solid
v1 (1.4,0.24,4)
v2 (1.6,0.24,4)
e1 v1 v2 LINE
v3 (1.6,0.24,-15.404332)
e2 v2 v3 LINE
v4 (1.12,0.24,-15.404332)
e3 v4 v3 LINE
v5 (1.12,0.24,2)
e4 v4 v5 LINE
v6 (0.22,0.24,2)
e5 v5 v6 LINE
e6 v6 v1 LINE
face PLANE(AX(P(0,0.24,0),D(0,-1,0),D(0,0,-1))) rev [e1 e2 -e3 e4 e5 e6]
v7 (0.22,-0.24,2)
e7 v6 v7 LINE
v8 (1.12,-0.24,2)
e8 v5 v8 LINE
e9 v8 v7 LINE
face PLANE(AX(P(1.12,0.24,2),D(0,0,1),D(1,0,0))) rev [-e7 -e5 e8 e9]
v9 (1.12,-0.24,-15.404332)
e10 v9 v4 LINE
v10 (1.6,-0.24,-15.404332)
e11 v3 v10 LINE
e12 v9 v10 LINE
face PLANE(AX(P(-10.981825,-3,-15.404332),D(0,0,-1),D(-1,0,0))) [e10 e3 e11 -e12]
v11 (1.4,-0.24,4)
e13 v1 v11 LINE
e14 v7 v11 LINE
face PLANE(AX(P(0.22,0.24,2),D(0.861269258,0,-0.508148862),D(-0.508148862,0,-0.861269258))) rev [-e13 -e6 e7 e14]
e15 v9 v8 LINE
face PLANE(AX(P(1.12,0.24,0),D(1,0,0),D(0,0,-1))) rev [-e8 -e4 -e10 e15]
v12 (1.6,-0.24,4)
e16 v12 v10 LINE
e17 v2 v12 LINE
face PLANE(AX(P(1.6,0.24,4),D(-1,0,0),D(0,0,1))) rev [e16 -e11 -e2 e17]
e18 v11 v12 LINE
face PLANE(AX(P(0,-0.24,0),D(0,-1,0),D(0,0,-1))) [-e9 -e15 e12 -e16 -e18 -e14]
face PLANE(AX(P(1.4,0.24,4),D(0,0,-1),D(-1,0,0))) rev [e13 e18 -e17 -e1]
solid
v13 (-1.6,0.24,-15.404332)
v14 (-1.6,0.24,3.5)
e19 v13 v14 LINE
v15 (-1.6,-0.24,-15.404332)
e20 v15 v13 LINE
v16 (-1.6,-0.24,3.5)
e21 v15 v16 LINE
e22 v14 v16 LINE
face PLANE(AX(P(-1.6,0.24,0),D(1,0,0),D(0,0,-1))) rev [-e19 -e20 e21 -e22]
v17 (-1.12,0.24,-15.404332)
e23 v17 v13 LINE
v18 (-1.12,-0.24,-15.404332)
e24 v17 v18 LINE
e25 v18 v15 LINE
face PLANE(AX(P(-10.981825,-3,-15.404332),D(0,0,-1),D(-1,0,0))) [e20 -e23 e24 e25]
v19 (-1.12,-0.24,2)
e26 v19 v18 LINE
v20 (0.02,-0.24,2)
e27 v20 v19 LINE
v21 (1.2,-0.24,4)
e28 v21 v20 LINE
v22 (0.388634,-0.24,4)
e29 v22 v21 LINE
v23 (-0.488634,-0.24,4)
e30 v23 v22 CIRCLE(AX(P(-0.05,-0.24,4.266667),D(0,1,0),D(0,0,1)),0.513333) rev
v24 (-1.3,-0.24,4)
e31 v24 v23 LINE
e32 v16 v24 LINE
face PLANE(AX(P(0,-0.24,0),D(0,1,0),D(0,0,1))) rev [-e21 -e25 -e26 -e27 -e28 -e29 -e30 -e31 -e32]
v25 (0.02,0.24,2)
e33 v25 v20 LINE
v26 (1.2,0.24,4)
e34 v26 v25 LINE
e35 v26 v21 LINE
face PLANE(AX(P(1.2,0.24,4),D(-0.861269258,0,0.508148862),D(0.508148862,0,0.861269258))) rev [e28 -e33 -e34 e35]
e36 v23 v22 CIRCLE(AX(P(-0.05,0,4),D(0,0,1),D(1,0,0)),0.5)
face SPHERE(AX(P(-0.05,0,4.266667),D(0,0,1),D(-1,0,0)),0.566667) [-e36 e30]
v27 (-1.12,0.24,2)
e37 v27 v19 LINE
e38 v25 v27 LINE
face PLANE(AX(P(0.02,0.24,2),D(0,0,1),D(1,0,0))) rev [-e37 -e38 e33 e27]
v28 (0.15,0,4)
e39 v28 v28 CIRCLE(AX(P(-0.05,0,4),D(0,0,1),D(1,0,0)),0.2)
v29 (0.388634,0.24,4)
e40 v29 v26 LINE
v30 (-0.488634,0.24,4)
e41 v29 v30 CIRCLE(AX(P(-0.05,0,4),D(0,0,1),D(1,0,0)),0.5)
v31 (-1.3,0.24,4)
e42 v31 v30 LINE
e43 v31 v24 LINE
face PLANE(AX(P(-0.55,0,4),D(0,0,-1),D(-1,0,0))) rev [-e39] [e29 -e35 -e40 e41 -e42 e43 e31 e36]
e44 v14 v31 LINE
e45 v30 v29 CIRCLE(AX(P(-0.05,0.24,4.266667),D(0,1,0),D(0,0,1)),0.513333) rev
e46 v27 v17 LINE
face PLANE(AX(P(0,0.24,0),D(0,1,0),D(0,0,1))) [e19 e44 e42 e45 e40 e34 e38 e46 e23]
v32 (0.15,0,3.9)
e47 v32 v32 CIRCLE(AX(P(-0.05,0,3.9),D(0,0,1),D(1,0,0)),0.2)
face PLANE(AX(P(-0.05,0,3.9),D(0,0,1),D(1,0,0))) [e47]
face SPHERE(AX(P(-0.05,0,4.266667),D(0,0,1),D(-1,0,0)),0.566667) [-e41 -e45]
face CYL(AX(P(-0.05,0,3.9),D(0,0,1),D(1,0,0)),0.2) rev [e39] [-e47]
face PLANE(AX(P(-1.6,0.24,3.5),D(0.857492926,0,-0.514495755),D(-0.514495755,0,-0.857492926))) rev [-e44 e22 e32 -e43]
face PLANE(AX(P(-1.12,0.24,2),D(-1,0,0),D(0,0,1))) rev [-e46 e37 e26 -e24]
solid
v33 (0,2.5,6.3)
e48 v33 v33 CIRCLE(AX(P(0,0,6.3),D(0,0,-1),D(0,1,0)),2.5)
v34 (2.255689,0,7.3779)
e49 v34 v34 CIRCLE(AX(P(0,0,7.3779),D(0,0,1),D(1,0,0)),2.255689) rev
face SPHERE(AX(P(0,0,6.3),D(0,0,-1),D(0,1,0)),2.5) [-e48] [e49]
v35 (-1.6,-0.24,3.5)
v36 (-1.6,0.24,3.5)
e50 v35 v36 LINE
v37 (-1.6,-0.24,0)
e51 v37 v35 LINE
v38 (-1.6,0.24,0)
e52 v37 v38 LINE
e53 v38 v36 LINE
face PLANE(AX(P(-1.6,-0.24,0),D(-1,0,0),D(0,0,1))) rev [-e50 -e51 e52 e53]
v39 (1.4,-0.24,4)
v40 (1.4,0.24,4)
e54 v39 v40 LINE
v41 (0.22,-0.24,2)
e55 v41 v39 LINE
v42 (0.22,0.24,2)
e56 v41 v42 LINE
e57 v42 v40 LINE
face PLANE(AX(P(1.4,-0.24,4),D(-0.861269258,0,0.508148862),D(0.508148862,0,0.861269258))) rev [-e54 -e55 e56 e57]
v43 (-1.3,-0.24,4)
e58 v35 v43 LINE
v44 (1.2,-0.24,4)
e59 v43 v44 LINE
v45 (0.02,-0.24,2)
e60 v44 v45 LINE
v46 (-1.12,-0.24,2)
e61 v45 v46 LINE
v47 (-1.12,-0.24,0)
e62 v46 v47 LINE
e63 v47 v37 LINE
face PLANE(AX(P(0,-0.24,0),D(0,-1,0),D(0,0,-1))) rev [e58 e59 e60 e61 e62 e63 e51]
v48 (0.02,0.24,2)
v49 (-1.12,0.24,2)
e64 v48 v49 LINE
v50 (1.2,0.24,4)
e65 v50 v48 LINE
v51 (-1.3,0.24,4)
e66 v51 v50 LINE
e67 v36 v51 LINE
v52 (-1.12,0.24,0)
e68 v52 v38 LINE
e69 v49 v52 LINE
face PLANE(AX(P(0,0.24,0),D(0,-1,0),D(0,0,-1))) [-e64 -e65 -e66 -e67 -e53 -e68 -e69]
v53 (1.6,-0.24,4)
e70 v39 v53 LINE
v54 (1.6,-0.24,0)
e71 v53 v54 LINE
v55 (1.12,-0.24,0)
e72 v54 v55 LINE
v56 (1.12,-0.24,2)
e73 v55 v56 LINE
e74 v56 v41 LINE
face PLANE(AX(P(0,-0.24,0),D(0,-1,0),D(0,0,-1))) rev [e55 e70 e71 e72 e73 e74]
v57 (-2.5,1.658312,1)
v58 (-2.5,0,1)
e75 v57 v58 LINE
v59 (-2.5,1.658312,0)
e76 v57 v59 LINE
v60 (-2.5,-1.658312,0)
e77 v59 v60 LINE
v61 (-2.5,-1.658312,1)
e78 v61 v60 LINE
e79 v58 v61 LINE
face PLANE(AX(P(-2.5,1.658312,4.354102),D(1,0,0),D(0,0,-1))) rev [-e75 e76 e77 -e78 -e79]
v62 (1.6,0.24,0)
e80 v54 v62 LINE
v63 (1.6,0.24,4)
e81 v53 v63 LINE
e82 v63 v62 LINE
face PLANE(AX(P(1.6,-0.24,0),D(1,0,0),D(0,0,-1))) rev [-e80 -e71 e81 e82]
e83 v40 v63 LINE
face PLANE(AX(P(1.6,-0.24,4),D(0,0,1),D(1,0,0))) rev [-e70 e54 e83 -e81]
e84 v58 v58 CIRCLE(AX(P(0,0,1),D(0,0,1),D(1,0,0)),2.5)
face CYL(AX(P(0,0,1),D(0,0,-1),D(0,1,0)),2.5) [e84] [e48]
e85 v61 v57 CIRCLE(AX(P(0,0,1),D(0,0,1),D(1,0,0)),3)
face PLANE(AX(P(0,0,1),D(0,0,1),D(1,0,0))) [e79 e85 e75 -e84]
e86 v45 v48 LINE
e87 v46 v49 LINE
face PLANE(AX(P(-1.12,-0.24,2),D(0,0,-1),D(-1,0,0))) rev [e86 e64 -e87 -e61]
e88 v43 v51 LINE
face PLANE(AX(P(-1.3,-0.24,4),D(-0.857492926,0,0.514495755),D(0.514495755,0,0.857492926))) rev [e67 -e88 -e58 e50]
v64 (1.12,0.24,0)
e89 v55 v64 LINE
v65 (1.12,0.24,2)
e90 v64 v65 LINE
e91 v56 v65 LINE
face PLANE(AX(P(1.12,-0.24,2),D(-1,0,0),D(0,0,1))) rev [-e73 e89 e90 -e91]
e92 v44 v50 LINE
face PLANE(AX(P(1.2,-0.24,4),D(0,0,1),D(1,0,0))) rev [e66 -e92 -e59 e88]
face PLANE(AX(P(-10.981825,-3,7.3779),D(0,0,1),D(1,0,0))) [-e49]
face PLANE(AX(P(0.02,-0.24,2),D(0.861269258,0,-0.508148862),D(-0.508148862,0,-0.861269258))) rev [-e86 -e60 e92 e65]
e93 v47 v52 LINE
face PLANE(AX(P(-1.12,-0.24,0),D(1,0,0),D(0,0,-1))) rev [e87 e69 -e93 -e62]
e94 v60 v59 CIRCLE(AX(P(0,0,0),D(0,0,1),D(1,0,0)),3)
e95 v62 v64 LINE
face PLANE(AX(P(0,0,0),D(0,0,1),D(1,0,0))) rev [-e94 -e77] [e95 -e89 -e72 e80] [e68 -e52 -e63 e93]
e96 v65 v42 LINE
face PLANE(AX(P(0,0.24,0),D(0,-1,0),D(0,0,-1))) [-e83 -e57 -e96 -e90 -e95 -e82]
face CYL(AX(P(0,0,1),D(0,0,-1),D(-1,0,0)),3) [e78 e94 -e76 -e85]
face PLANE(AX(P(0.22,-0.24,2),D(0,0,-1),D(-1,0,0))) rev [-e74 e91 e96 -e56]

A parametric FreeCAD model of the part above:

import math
import FreeCAD as App
import Part
import Sketcher

V = App.Vector

doc = App.newDocument("Part")
body = doc.addObject("PartDesign::Body", "Body")

# Sketch on XY plane
sketch1 = doc.addObject("Sketcher::SketchObject", "Sketch")
body.addObject(sketch1)
sketch1.AttachmentSupport = (doc.XY_Plane, [""])
sketch1.MapMode = "FlatFace"
sketch1.addGeometry(Part.Circle(V(0, 0, 0), V(0, 0, 1), 3), False)
sketch1.addConstraint(Sketcher.Constraint("Coincident", 0, 3, -1, 1))
sketch1.addConstraint(Sketcher.Constraint("Diameter", 0, 6.0))
pad1 = doc.addObject("PartDesign::Pad", "Pad")
body.addObject(pad1)
pad1.Profile = sketch1
pad1.Length = 1

# Sketch on YZ plane
sketch2 = doc.addObject("Sketcher::SketchObject", "Sketch001")
body.addObject(sketch2)
sketch2.AttachmentSupport = (doc.YZ_Plane, [""])
sketch2.MapMode = "FlatFace"
sketch2.addGeometry(Part.LineSegment(V(0, 8.8, 0), V(0, 1, 0)), False)
sketch2.addGeometry(Part.LineSegment(V(0, 1, 0), V(2.5, 1, 0)), False)
sketch2.addGeometry(Part.LineSegment(V(2.5, 1, 0), V(2.5, 6.3, 0)), False)
sketch2.addGeometry(Part.ArcOfCircle(Part.Circle(V(0, 6.3, 0), V(0, 0, 1), 2.5), math.radians(0), math.radians(90)), False)
sketch2.addConstraint(Sketcher.Constraint("Coincident", 0, 2, 1, 1))
sketch2.addConstraint(Sketcher.Constraint("Coincident", 1, 2, 2, 1))
sketch2.addConstraint(Sketcher.Constraint("Tangent", 2, 2, 3, 1))
sketch2.addConstraint(Sketcher.Constraint("Coincident", 3, 2, 0, 1))
sketch2.addConstraint(Sketcher.Constraint("Vertical", 0))
sketch2.addConstraint(Sketcher.Constraint("Horizontal", 1))
sketch2.addConstraint(Sketcher.Constraint("Vertical", 2))
sketch2.addConstraint(Sketcher.Constraint("PointOnObject", 3, 3, -2))
sketch2.addConstraint(Sketcher.Constraint("PointOnObject", 0, 2, -2))
sketch2.addConstraint(Sketcher.Constraint("Radius", 3, 2.5))
sketch2.addConstraint(Sketcher.Constraint("DistanceY", 0, 2, 0, 1, 7.8))
sketch2.addConstraint(Sketcher.Constraint("DistanceY", -1, 1, 0, 2, 1.0))
revolution = doc.addObject("PartDesign::Revolution", "Revolution")
body.addObject(revolution)
revolution.Profile = sketch2
revolution.ReferenceAxis = (sketch2, ["V_Axis"])
revolution.Angle = 360

# Sketch on XY plane
sketch3 = doc.addObject("Sketcher::SketchObject", "Sketch002")
body.addObject(sketch3)
sketch3.AttachmentSupport = (doc.XY_Plane, [""])
sketch3.MapMode = "FlatFace"
sketch3.addGeometry(Part.LineSegment(V(-2.5, 1.7, 0), V(-2.5, -1.7, 0)), False)
sketch3.addGeometry(Part.ArcOfCircle(Part.Circle(V(0, 0, 0), V(0, 0, 1), 3), math.radians(146), math.radians(214)), False)
sketch3.addConstraint(Sketcher.Constraint("Coincident", 0, 1, 1, 1))
sketch3.addConstraint(Sketcher.Constraint("Coincident", 1, 2, 0, 2))
sketch3.addConstraint(Sketcher.Constraint("Vertical", 0))
sketch3.addConstraint(Sketcher.Constraint("Coincident", 1, 3, -1, 1))
sketch3.addConstraint(Sketcher.Constraint("Radius", 1, 3.0))
sketch3.addConstraint(Sketcher.Constraint("DistanceX", 0, 1, -1, 1, 2.5))
pocket1 = doc.addObject("PartDesign::Pocket", "Pocket")
body.addObject(pocket1)
pocket1.Profile = sketch3
pocket1.Length = 1
pocket1.Reversed = True

# Sketch on XZ plane
sketch4 = doc.addObject("Sketcher::SketchObject", "Sketch003")
body.addObject(sketch4)
sketch4.AttachmentSupport = (doc.XZ_Plane, [""])
sketch4.MapMode = "FlatFace"
sketch4.addGeometry(Part.LineSegment(V(-1.6, 0, 0), V(-1.6, 3.5, 0)), False)
sketch4.addGeometry(Part.LineSegment(V(-1.6, 3.5, 0), V(-1.3, 4, 0)), False)
sketch4.addGeometry(Part.LineSegment(V(-1.3, 4, 0), V(1.2, 4, 0)), False)
sketch4.addGeometry(Part.LineSegment(V(1.2, 4, 0), V(0.02, 2, 0)), False)
sketch4.addGeometry(Part.LineSegment(V(0.02, 2, 0), V(-1.12, 2, 0)), False)
sketch4.addGeometry(Part.LineSegment(V(-1.12, 2, 0), V(-1.12, 0, 0)), False)
sketch4.addGeometry(Part.LineSegment(V(-1.12, 0, 0), V(-1.6, 0, 0)), False)
sketch4.addGeometry(Part.LineSegment(V(1.6, 4, 0), V(1.6, 0, 0)), False)
sketch4.addGeometry(Part.LineSegment(V(1.6, 0, 0), V(1.12, 0, 0)), False)
sketch4.addGeometry(Part.LineSegment(V(1.12, 0, 0), V(1.12, 2, 0)), False)
sketch4.addGeometry(Part.LineSegment(V(1.12, 2, 0), V(0.22, 2, 0)), False)
sketch4.addGeometry(Part.LineSegment(V(0.22, 2, 0), V(1.4, 4, 0)), False)
sketch4.addGeometry(Part.LineSegment(V(1.4, 4, 0), V(1.6, 4, 0)), False)
sketch4.addConstraint(Sketcher.Constraint("Coincident", 0, 2, 1, 1))
sketch4.addConstraint(Sketcher.Constraint("Coincident", 1, 2, 2, 1))
sketch4.addConstraint(Sketcher.Constraint("Coincident", 2, 2, 3, 1))
sketch4.addConstraint(Sketcher.Constraint("Coincident", 3, 2, 4, 1))
sketch4.addConstraint(Sketcher.Constraint("Coincident", 4, 2, 5, 1))
sketch4.addConstraint(Sketcher.Constraint("Coincident", 5, 2, 6, 1))
sketch4.addConstraint(Sketcher.Constraint("Coincident", 6, 2, 0, 1))
sketch4.addConstraint(Sketcher.Constraint("Coincident", 7, 2, 8, 1))
sketch4.addConstraint(Sketcher.Constraint("Coincident", 8, 2, 9, 1))
sketch4.addConstraint(Sketcher.Constraint("Coincident", 9, 2, 10, 1))
sketch4.addConstraint(Sketcher.Constraint("Coincident", 10, 2, 11, 1))
sketch4.addConstraint(Sketcher.Constraint("Coincident", 11, 2, 12, 1))
sketch4.addConstraint(Sketcher.Constraint("Coincident", 12, 2, 7, 1))
sketch4.addConstraint(Sketcher.Constraint("Vertical", 0))
sketch4.addConstraint(Sketcher.Constraint("Horizontal", 2))
sketch4.addConstraint(Sketcher.Constraint("Horizontal", 4))
sketch4.addConstraint(Sketcher.Constraint("Vertical", 5))
sketch4.addConstraint(Sketcher.Constraint("Horizontal", 6))
sketch4.addConstraint(Sketcher.Constraint("Vertical", 7))
sketch4.addConstraint(Sketcher.Constraint("Horizontal", 8))
sketch4.addConstraint(Sketcher.Constraint("Vertical", 9))
sketch4.addConstraint(Sketcher.Constraint("Horizontal", 10))
sketch4.addConstraint(Sketcher.Constraint("Horizontal", 12))
sketch4.addConstraint(Sketcher.Constraint("Symmetric", 6, 2, 7, 2, -1, 1))
sketch4.addConstraint(Sketcher.Constraint("Symmetric", 5, 2, 8, 2, -2))
sketch4.addConstraint(Sketcher.Constraint("Parallel", 3, 11))
sketch4.addConstraint(Sketcher.Constraint("Horizontal", 4, 2, 9, 2))
sketch4.addConstraint(Sketcher.Constraint("Horizontal", 2, 2, 11, 2))
sketch4.addConstraint(Sketcher.Constraint("DistanceY", 5, 2, 5, 1, 2.0))
sketch4.addConstraint(Sketcher.Constraint("DistanceY", 7, 2, 7, 1, 4.0))
sketch4.addConstraint(Sketcher.Constraint("DistanceX", 2, 1, 2, 2, 2.5))
sketch4.addConstraint(Sketcher.Constraint("DistanceX", 10, 2, 10, 1, 0.9))
sketch4.addConstraint(Sketcher.Constraint("DistanceX", 12, 1, 12, 2, 0.2))
sketch4.addConstraint(Sketcher.Constraint("DistanceY", 0, 1, 0, 2, 3.5))
sketch4.addConstraint(Sketcher.Constraint("DistanceX", 4, 2, 4, 1, 1.14))
sketch4.addConstraint(Sketcher.Constraint("DistanceX", 6, 2, 6, 1, 0.48))
sketch4.addConstraint(Sketcher.Constraint("DistanceX", 0, 2, -1, 1, 1.6))
pocket2 = doc.addObject("PartDesign::Pocket", "Pocket001")
body.addObject(pocket2)
pocket2.Profile = sketch4
pocket2.Length = 0.48
pocket2.Midplane = True
body2 = doc.addObject("PartDesign::Body", "Body001")

# Sketch on XY plane
sketch5 = doc.addObject("Sketcher::SketchObject", "Sketch004")
body2.addObject(sketch5)
sketch5.AttachmentSupport = (doc.getObject("XY_Plane001"), [""])
sketch5.MapMode = "FlatFace"
sketch5.addGeometry(Part.LineSegment(V(1.6, 0.24, 0), V(1.6, -0.24, 0)), False)
sketch5.addGeometry(Part.LineSegment(V(1.6, -0.24, 0), V(1.12, -0.24, 0)), False)
sketch5.addGeometry(Part.LineSegment(V(1.12, -0.24, 0), V(1.12, 0.24, 0)), False)
sketch5.addGeometry(Part.LineSegment(V(1.12, 0.24, 0), V(1.6, 0.24, 0)), False)
sketch5.addConstraint(Sketcher.Constraint("Coincident", 0, 2, 1, 1))
sketch5.addConstraint(Sketcher.Constraint("Coincident", 1, 2, 2, 1))
sketch5.addConstraint(Sketcher.Constraint("Coincident", 2, 2, 3, 1))
sketch5.addConstraint(Sketcher.Constraint("Coincident", 3, 2, 0, 1))
sketch5.addConstraint(Sketcher.Constraint("Vertical", 0))
sketch5.addConstraint(Sketcher.Constraint("Horizontal", 1))
sketch5.addConstraint(Sketcher.Constraint("Vertical", 2))
sketch5.addConstraint(Sketcher.Constraint("Horizontal", 3))
sketch5.addConstraint(Sketcher.Constraint("Equal", 3, 0))
sketch5.addConstraint(Sketcher.Constraint("DistanceX", 1, 2, 1, 1, 0.48))
sketch5.addConstraint(Sketcher.Constraint("DistanceX", -1, 1, 0, 2, 1.6))
sketch5.addConstraint(Sketcher.Constraint("DistanceY", 0, 2, -1, 1, 0.24))
pad2 = doc.addObject("PartDesign::Pad", "Pad001")
body2.addObject(pad2)
pad2.Profile = sketch5
pad2.Length = 25
pad2.Reversed = True
body3 = doc.addObject("PartDesign::Body", "Body002")

# Sketch on XY plane
sketch6 = doc.addObject("Sketcher::SketchObject", "Sketch005")
body3.addObject(sketch6)
sketch6.AttachmentSupport = (doc.getObject("XY_Plane002"), [""])
sketch6.MapMode = "FlatFace"
sketch6.addGeometry(Part.LineSegment(V(-1.12, 0.24, 0), V(-1.12, -0.24, 0)), False)
sketch6.addGeometry(Part.LineSegment(V(-1.12, -0.24, 0), V(-1.6, -0.24, 0)), False)
sketch6.addGeometry(Part.LineSegment(V(-1.6, -0.24, 0), V(-1.6, 0.24, 0)), False)
sketch6.addGeometry(Part.LineSegment(V(-1.6, 0.24, 0), V(-1.12, 0.24, 0)), False)
sketch6.addConstraint(Sketcher.Constraint("Coincident", 0, 2, 1, 1))
sketch6.addConstraint(Sketcher.Constraint("Coincident", 1, 2, 2, 1))
sketch6.addConstraint(Sketcher.Constraint("Coincident", 2, 2, 3, 1))
sketch6.addConstraint(Sketcher.Constraint("Coincident", 3, 2, 0, 1))
sketch6.addConstraint(Sketcher.Constraint("Vertical", 0))
sketch6.addConstraint(Sketcher.Constraint("Horizontal", 1))
sketch6.addConstraint(Sketcher.Constraint("Vertical", 2))
sketch6.addConstraint(Sketcher.Constraint("Horizontal", 3))
sketch6.addConstraint(Sketcher.Constraint("Equal", 3, 0))
sketch6.addConstraint(Sketcher.Constraint("DistanceX", 1, 2, 1, 1, 0.48))
sketch6.addConstraint(Sketcher.Constraint("DistanceX", 1, 2, -1, 1, 1.6))
sketch6.addConstraint(Sketcher.Constraint("DistanceY", 0, 2, -1, 1, 0.24))
pad3 = doc.addObject("PartDesign::Pad", "Pad002")
body3.addObject(pad3)
pad3.Profile = sketch6
pad3.Length = 25
pad3.Reversed = True
body4 = doc.addObject("PartDesign::Body", "Body003")

# Sketch on XY plane
sketch7 = doc.addObject("Sketcher::SketchObject", "Sketch006")
body4.addObject(sketch7)
sketch7.AttachmentSupport = (doc.getObject("XY_Plane003"), [""])
sketch7.MapMode = "FlatFace"
sketch7.AttachmentOffset = App.Placement(V(0, 0, -25), App.Rotation())
sketch7.addGeometry(Part.LineSegment(V(1.6, 0.24, 0), V(1.6, -0.24, 0)), False)
sketch7.addGeometry(Part.LineSegment(V(1.6, -0.24, 0), V(1.12, -0.24, 0)), False)
sketch7.addGeometry(Part.LineSegment(V(1.12, -0.24, 0), V(1.12, 0.24, 0)), False)
sketch7.addGeometry(Part.LineSegment(V(1.12, 0.24, 0), V(1.6, 0.24, 0)), False)
sketch7.addConstraint(Sketcher.Constraint("Coincident", 0, 2, 1, 1))
sketch7.addConstraint(Sketcher.Constraint("Coincident", 1, 2, 2, 1))
sketch7.addConstraint(Sketcher.Constraint("Coincident", 2, 2, 3, 1))
sketch7.addConstraint(Sketcher.Constraint("Coincident", 3, 2, 0, 1))
sketch7.addConstraint(Sketcher.Constraint("Vertical", 0))
sketch7.addConstraint(Sketcher.Constraint("Horizontal", 1))
sketch7.addConstraint(Sketcher.Constraint("Vertical", 2))
sketch7.addConstraint(Sketcher.Constraint("Horizontal", 3))
sketch7.addConstraint(Sketcher.Constraint("Equal", 3, 0))
sketch7.addConstraint(Sketcher.Constraint("DistanceX", 1, 2, 1, 1, 0.48))
sketch7.addConstraint(Sketcher.Constraint("DistanceX", -1, 1, 0, 2, 1.6))
sketch7.addConstraint(Sketcher.Constraint("DistanceY", 0, 2, -1, 1, 0.24))
pad4 = doc.addObject("PartDesign::Pad", "Pad003")
body4.addObject(pad4)
pad4.Profile = sketch7
pad4.Length = 2
pad4.Reversed = True
body5 = doc.addObject("PartDesign::Body", "Body004")

# Sketch on XZ plane
sketch8 = doc.addObject("Sketcher::SketchObject", "Sketch007")
body5.addObject(sketch8)
sketch8.AttachmentSupport = (doc.getObject("XZ_Plane004"), [""])
sketch8.MapMode = "FlatFace"
sketch8.addGeometry(Part.LineSegment(V(-1.3, 4, 0), V(1.2, 4, 0)), False)
sketch8.addGeometry(Part.LineSegment(V(1.2, 4, 0), V(0.02, 2, 0)), False)
sketch8.addGeometry(Part.LineSegment(V(0.02, 2, 0), V(-1.12, 2, 0)), False)
sketch8.addGeometry(Part.LineSegment(V(-1.12, 2, 0), V(-1.12, 0, 0)), False)
sketch8.addGeometry(Part.LineSegment(V(-1.12, 0, 0), V(-1.6, 0, 0)), False)
sketch8.addGeometry(Part.LineSegment(V(-1.6, 0, 0), V(-1.6, 3.5, 0)), False)
sketch8.addGeometry(Part.LineSegment(V(-1.6, 3.5, 0), V(-1.3, 4, 0)), False)
sketch8.addConstraint(Sketcher.Constraint("Coincident", 0, 2, 1, 1))
sketch8.addConstraint(Sketcher.Constraint("Coincident", 1, 2, 2, 1))
sketch8.addConstraint(Sketcher.Constraint("Coincident", 2, 2, 3, 1))
sketch8.addConstraint(Sketcher.Constraint("Coincident", 3, 2, 4, 1))
sketch8.addConstraint(Sketcher.Constraint("Coincident", 4, 2, 5, 1))
sketch8.addConstraint(Sketcher.Constraint("Coincident", 5, 2, 6, 1))
sketch8.addConstraint(Sketcher.Constraint("Coincident", 6, 2, 0, 1))
sketch8.addConstraint(Sketcher.Constraint("Horizontal", 0))
sketch8.addConstraint(Sketcher.Constraint("Horizontal", 2))
sketch8.addConstraint(Sketcher.Constraint("Vertical", 3))
sketch8.addConstraint(Sketcher.Constraint("Horizontal", 4))
sketch8.addConstraint(Sketcher.Constraint("Vertical", 5))
sketch8.addConstraint(Sketcher.Constraint("PointOnObject", 3, 2, -1))
sketch8.addConstraint(Sketcher.Constraint("DistanceY", 3, 2, 3, 1, 2.0))
sketch8.addConstraint(Sketcher.Constraint("DistanceX", 0, 1, 0, 2, 2.5))
sketch8.addConstraint(Sketcher.Constraint("DistanceY", 5, 1, 5, 2, 3.5))
sketch8.addConstraint(Sketcher.Constraint("DistanceY", -1, 1, 0, 2, 4.0))
sketch8.addConstraint(Sketcher.Constraint("DistanceX", 2, 2, 2, 1, 1.14))
sketch8.addConstraint(Sketcher.Constraint("DistanceX", 4, 2, 4, 1, 0.48))
sketch8.addConstraint(Sketcher.Constraint("DistanceX", -1, 1, 0, 2, 1.2))
sketch8.addConstraint(Sketcher.Constraint("DistanceX", 4, 2, -1, 1, 1.6))
pad5 = doc.addObject("PartDesign::Pad", "Pad004")
body5.addObject(pad5)
pad5.Profile = sketch8
pad5.Length = 0.48
pad5.Midplane = True
doc.recompute()

boolean = doc.addObject("PartDesign::Boolean", "Boolean")
body5.addObject(boolean)
boolean.Type = "Fuse"
boolean.addObjects([body3])

# Sketch on XZ plane
sketch9 = doc.addObject("Sketcher::SketchObject", "Sketch008")
body5.addObject(sketch9)
sketch9.AttachmentSupport = (doc.getObject("XZ_Plane004"), [""])
sketch9.MapMode = "FlatFace"
sketch9.addGeometry(Part.LineSegment(V(-0.05, 4, 0), V(-0.05, 3.7, 0)), False)
sketch9.addGeometry(Part.ArcOfCircle(Part.Circle(V(-0.05, 4.27, 0), V(0, 0, 1), 0.57), math.radians(-152), math.radians(-90)), False)
sketch9.addGeometry(Part.LineSegment(V(-0.55, 4, 0), V(-0.05, 4, 0)), False)
sketch9.addGeometry(Part.LineSegment(V(-0.05, 4.27, 0), V(-0.05, 3.7, 0)), True)  # axis
sketch9.addConstraint(Sketcher.Constraint("Coincident", 0, 2, 1, 2))
sketch9.addConstraint(Sketcher.Constraint("Coincident", 1, 1, 2, 1))
sketch9.addConstraint(Sketcher.Constraint("Coincident", 2, 2, 0, 1))
sketch9.addConstraint(Sketcher.Constraint("Vertical", 0))
sketch9.addConstraint(Sketcher.Constraint("Horizontal", 2))
sketch9.addConstraint(Sketcher.Constraint("Vertical", 3))
sketch9.addConstraint(Sketcher.Constraint("Coincident", 3, 1, 1, 3))
sketch9.addConstraint(Sketcher.Constraint("Coincident", 3, 2, 0, 2))
sketch9.addConstraint(Sketcher.Constraint("DistanceX", 2, 1, 2, 2, 0.5))
sketch9.addConstraint(Sketcher.Constraint("DistanceY", 0, 2, 0, 1, 0.3))
sketch9.addConstraint(Sketcher.Constraint("DistanceY", -1, 1, 1, 1, 4.0))
sketch9.addConstraint(Sketcher.Constraint("DistanceX", 1, 3, -1, 1, 0.05))
groove = doc.addObject("PartDesign::Groove", "Groove")
body5.addObject(groove)
groove.Profile = sketch9
groove.ReferenceAxis = (sketch9, ["Axis0"])
groove.Angle = 360
body6 = doc.addObject("PartDesign::Body", "Body005")
body6.AllowCompound = True

# Sketch on XZ plane
sketch10 = doc.addObject("Sketcher::SketchObject", "Sketch009")
body6.addObject(sketch10)
sketch10.AttachmentSupport = (doc.getObject("XZ_Plane005"), [""])
sketch10.MapMode = "FlatFace"
sketch10.addGeometry(Part.LineSegment(V(0.22, 2, 0), V(1.4, 4, 0)), False)
sketch10.addGeometry(Part.LineSegment(V(1.4, 4, 0), V(1.6, 4, 0)), False)
sketch10.addGeometry(Part.LineSegment(V(1.6, 4, 0), V(1.6, 0, 0)), False)
sketch10.addGeometry(Part.LineSegment(V(1.6, 0, 0), V(1.12, 0, 0)), False)
sketch10.addGeometry(Part.LineSegment(V(1.12, 0, 0), V(1.12, 2, 0)), False)
sketch10.addGeometry(Part.LineSegment(V(1.12, 2, 0), V(0.22, 2, 0)), False)
sketch10.addConstraint(Sketcher.Constraint("Coincident", 0, 2, 1, 1))
sketch10.addConstraint(Sketcher.Constraint("Coincident", 1, 2, 2, 1))
sketch10.addConstraint(Sketcher.Constraint("Coincident", 2, 2, 3, 1))
sketch10.addConstraint(Sketcher.Constraint("Coincident", 3, 2, 4, 1))
sketch10.addConstraint(Sketcher.Constraint("Coincident", 4, 2, 5, 1))
sketch10.addConstraint(Sketcher.Constraint("Coincident", 5, 2, 0, 1))
sketch10.addConstraint(Sketcher.Constraint("Horizontal", 1))
sketch10.addConstraint(Sketcher.Constraint("Vertical", 2))
sketch10.addConstraint(Sketcher.Constraint("Horizontal", 3))
sketch10.addConstraint(Sketcher.Constraint("Vertical", 4))
sketch10.addConstraint(Sketcher.Constraint("Horizontal", 5))
sketch10.addConstraint(Sketcher.Constraint("PointOnObject", 2, 2, -1))
sketch10.addConstraint(Sketcher.Constraint("DistanceY", 2, 2, 2, 1, 4.0))
sketch10.addConstraint(Sketcher.Constraint("DistanceY", 4, 1, 4, 2, 2.0))
sketch10.addConstraint(Sketcher.Constraint("DistanceX", 1, 1, 1, 2, 0.2))
sketch10.addConstraint(Sketcher.Constraint("DistanceX", 5, 2, 5, 1, 0.9))
sketch10.addConstraint(Sketcher.Constraint("DistanceX", 3, 2, 3, 1, 0.48))
sketch10.addConstraint(Sketcher.Constraint("DistanceX", -1, 1, 0, 2, 1.4))
pad6 = doc.addObject("PartDesign::Pad", "Pad005")
body6.addObject(pad6)
pad6.Profile = sketch10
pad6.Length = 0.48
pad6.Midplane = True
doc.recompute()

boolean2 = doc.addObject("PartDesign::Boolean", "Boolean001")
body6.addObject(boolean2)
boolean2.Type = "Fuse"
boolean2.addObjects([body4])
doc.recompute()

boolean3 = doc.addObject("PartDesign::Boolean", "Boolean002")
body6.addObject(boolean3)
boolean3.Type = "Fuse"
boolean3.addObjects([body2])
body7 = doc.addObject("PartDesign::Body", "Body006")

# Sketch on XZ plane
sketch11 = doc.addObject("Sketcher::SketchObject", "Sketch010")
body7.addObject(sketch11)
sketch11.AttachmentSupport = (doc.getObject("XZ_Plane006"), [""])
sketch11.MapMode = "FlatFace"
sketch11.addGeometry(Part.LineSegment(V(-0.55, 4, 0), V(-0.05, 4, 0)), False)
sketch11.addGeometry(Part.LineSegment(V(-0.05, 4, 0), V(-0.05, 3.7, 0)), False)
sketch11.addGeometry(Part.ArcOfCircle(Part.Circle(V(-0.05, 4.27, 0), V(0, 0, 1), 0.57), math.radians(-152), math.radians(-90)), False)
sketch11.addGeometry(Part.LineSegment(V(-0.05, 4.27, 0), V(-0.05, 3.7, 0)), True)  # axis
sketch11.addConstraint(Sketcher.Constraint("Coincident", 0, 2, 1, 1))
sketch11.addConstraint(Sketcher.Constraint("Coincident", 1, 2, 2, 2))
sketch11.addConstraint(Sketcher.Constraint("Coincident", 2, 1, 0, 1))
sketch11.addConstraint(Sketcher.Constraint("Horizontal", 0))
sketch11.addConstraint(Sketcher.Constraint("Vertical", 1))
sketch11.addConstraint(Sketcher.Constraint("Vertical", 3))
sketch11.addConstraint(Sketcher.Constraint("Coincident", 3, 1, 2, 3))
sketch11.addConstraint(Sketcher.Constraint("Coincident", 3, 2, 1, 2))
sketch11.addConstraint(Sketcher.Constraint("DistanceX", 0, 1, 0, 2, 0.5))
sketch11.addConstraint(Sketcher.Constraint("DistanceY", 1, 2, 1, 1, 0.3))
sketch11.addConstraint(Sketcher.Constraint("DistanceY", -1, 1, 0, 2, 4.0))
sketch11.addConstraint(Sketcher.Constraint("DistanceX", 2, 3, -1, 1, 0.05))
revolution2 = doc.addObject("PartDesign::Revolution", "Revolution001")
body7.addObject(revolution2)
revolution2.Profile = sketch11
revolution2.ReferenceAxis = (sketch11, ["Axis0"])
revolution2.Angle = 360
doc.recompute()

boolean4 = doc.addObject("PartDesign::Boolean", "Boolean003")
body7.addObject(boolean4)
boolean4.Type = "Fuse"
boolean4.addObjects([body5])

# Sketch on XY plane
sketch12 = doc.addObject("Sketcher::SketchObject", "Sketch011")
body7.addObject(sketch12)
sketch12.AttachmentSupport = (doc.getObject("XY_Plane006"), [""])
sketch12.MapMode = "FlatFace"
sketch12.AttachmentOffset = App.Placement(V(0, 0, 4), App.Rotation())
sketch12.addGeometry(Part.Circle(V(-0.05, 0, 0), V(0, 0, 1), 0.2), False)
sketch12.addConstraint(Sketcher.Constraint("PointOnObject", 0, 3, -1))
sketch12.addConstraint(Sketcher.Constraint("Diameter", 0, 0.4))
sketch12.addConstraint(Sketcher.Constraint("DistanceX", 0, 3, -1, 1, 0.05))
pocket3 = doc.addObject("PartDesign::Pocket", "Pocket002")
body7.addObject(pocket3)
pocket3.Profile = sketch12
pocket3.Length = 0.1
body8 = doc.addObject("PartDesign::Body", "Body007")

# Sketch on XZ plane
sketch13 = doc.addObject("Sketcher::SketchObject", "Sketch012")
body8.addObject(sketch13)
sketch13.AttachmentSupport = (doc.getObject("XZ_Plane007"), [""])
sketch13.MapMode = "FlatFace"
sketch13.addGeometry(Part.LineSegment(V(-19, -33, 0), V(-19, 30, 0)), False)
sketch13.addGeometry(Part.LineSegment(V(-19, 30, 0), V(21, 30, 0)), False)
sketch13.addGeometry(Part.LineSegment(V(21, 30, 0), V(21, -33, 0)), False)
sketch13.addGeometry(Part.LineSegment(V(21, -33, 0), V(-19, -33, 0)), False)
sketch13.addGeometry(Part.LineSegment(V(10, 7, 0), V(-11, 7, 0)), False)
sketch13.addGeometry(Part.LineSegment(V(-11, 7, 0), V(-11, -15, 0)), False)
sketch13.addGeometry(Part.LineSegment(V(-11, -15, 0), V(10, -15, 0)), False)
sketch13.addGeometry(Part.LineSegment(V(10, -15, 0), V(10, 7, 0)), False)
sketch13.addConstraint(Sketcher.Constraint("Coincident", 0, 2, 1, 1))
sketch13.addConstraint(Sketcher.Constraint("Coincident", 1, 2, 2, 1))
sketch13.addConstraint(Sketcher.Constraint("Coincident", 2, 2, 3, 1))
sketch13.addConstraint(Sketcher.Constraint("Coincident", 3, 2, 0, 1))
sketch13.addConstraint(Sketcher.Constraint("Coincident", 4, 2, 5, 1))
sketch13.addConstraint(Sketcher.Constraint("Coincident", 5, 2, 6, 1))
sketch13.addConstraint(Sketcher.Constraint("Coincident", 6, 2, 7, 1))
sketch13.addConstraint(Sketcher.Constraint("Coincident", 7, 2, 4, 1))
sketch13.addConstraint(Sketcher.Constraint("Vertical", 0))
sketch13.addConstraint(Sketcher.Constraint("Horizontal", 1))
sketch13.addConstraint(Sketcher.Constraint("Vertical", 2))
sketch13.addConstraint(Sketcher.Constraint("Horizontal", 3))
sketch13.addConstraint(Sketcher.Constraint("Horizontal", 4))
sketch13.addConstraint(Sketcher.Constraint("Vertical", 5))
sketch13.addConstraint(Sketcher.Constraint("Horizontal", 6))
sketch13.addConstraint(Sketcher.Constraint("Vertical", 7))
sketch13.addConstraint(Sketcher.Constraint("DistanceY", 5, 2, 5, 1, 22.782232))
sketch13.addConstraint(Sketcher.Constraint("DistanceY", -1, 1, 4, 2, 7.3779))
sketch13.addConstraint(Sketcher.Constraint("DistanceX", 1, 1, 1, 2, 40.503516))
sketch13.addConstraint(Sketcher.Constraint("DistanceX", 4, 2, 4, 1, 20.905522))
sketch13.addConstraint(Sketcher.Constraint("DistanceY", 0, 1, 0, 2, 63.372853))
sketch13.addConstraint(Sketcher.Constraint("DistanceX", -1, 1, 1, 2, 21.089848))
sketch13.addConstraint(Sketcher.Constraint("DistanceY", 4, 2, 0, 2, 22.685628))
sketch13.addConstraint(Sketcher.Constraint("DistanceX", 6, 2, 2, 2, 11.166151))
pad7 = doc.addObject("PartDesign::Pad", "Pad006")
body8.addObject(pad7)
pad7.Profile = sketch13
pad7.Type = "TwoLengths"
pad7.Length = 4
pad7.Length2 = 4
pad7.Reversed = True
doc.recompute()

body9 = doc.addObject("PartDesign::Body", "Body008")
body9.BaseFeature = body8
boolean5 = doc.addObject("PartDesign::Boolean", "Boolean004")
body.addObject(boolean5)
boolean5.Type = "Cut"
boolean5.addObjects([body9])
doc.recompute()

body10 = doc.addObject("PartDesign::Body", "Body009")
body10.BaseFeature = body8
boolean6 = doc.addObject("PartDesign::Boolean", "Boolean005")
body6.addObject(boolean6)
boolean6.Type = "Cut"
boolean6.addObjects([body10])
doc.recompute()

boolean7 = doc.addObject("PartDesign::Boolean", "Boolean006")
body7.addObject(boolean7)
boolean7.Type = "Cut"
boolean7.addObjects([body8])

doc.recompute()
